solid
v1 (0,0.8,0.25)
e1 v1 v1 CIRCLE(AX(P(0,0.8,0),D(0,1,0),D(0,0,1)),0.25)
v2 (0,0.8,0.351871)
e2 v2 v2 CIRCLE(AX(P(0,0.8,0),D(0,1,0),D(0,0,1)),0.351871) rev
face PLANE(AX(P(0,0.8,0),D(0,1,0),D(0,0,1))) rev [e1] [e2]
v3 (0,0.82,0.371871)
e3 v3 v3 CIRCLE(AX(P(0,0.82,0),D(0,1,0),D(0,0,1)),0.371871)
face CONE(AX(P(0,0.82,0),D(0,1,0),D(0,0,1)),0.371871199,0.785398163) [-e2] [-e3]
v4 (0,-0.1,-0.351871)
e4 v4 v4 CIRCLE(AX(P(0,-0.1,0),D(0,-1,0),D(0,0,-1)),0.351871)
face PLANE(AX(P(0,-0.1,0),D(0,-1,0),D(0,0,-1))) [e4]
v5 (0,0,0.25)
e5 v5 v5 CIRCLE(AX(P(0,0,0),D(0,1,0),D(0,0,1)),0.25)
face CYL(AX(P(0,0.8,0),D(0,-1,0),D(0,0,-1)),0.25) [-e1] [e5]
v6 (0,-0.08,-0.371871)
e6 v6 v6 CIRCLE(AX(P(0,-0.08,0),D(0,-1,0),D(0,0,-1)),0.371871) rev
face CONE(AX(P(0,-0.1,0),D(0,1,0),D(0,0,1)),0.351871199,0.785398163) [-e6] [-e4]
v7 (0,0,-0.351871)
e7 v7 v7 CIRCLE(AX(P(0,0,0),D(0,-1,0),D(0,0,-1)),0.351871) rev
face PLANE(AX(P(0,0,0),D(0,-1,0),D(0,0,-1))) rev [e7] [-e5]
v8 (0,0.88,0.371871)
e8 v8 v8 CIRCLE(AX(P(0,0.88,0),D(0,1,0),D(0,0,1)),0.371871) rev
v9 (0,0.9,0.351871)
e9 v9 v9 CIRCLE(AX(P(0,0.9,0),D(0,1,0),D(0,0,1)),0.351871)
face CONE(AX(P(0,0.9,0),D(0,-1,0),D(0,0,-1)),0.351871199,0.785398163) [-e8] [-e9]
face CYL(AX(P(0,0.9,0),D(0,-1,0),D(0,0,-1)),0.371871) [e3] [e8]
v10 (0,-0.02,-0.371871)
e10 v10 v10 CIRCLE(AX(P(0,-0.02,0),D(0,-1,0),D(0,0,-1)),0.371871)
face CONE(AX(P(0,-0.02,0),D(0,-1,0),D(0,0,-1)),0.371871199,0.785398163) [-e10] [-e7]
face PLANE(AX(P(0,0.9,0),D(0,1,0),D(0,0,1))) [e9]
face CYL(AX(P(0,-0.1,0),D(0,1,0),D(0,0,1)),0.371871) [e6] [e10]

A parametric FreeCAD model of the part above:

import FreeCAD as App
import Part
import Sketcher
Q = App.Units.Quantity


def edges_at(feature, points):
    """Names of the edges that pass closest to the given points."""
    edges = feature.Shape.Edges
    near = lambda p: min(range(len(edges)), key=lambda i: edges[i].distToShape(Part.Vertex(*p))[0])
    return sorted({f"Edge{near(p) + 1}" for p in points})

doc = App.newDocument("Part")
params = doc.addObject("Spreadsheet::Sheet", "Params")
for row, (alias, value) in enumerate([
    ("sketch1_diameter", "0.5 mm"),
    ("pad1_length", "0.8 mm"),
    ("pad2_length", "0.1 mm"),
    ("pad3_length", "0.1 mm"),
    ("chamfer_size", "0.02 mm"),
    ("chamfer2_size", "0.02 mm"),
    ("chamfer3_size", "0.02 mm"),
], start=1):
    params.set(f"A{row}", alias)
    params.set(f"B{row}", "=" + value)
    params.setAlias(f"B{row}", alias)

body = doc.addObject("PartDesign::Body", "Body")

# Sketch on XZ plane
sketch1 = body.newObject("Sketcher::SketchObject", "Sketch")
sketch1.AttachmentSupport = (doc.getObject("XZ_Plane"), [""])
sketch1.MapMode = "FlatFace"
sketch1.addGeometry(Part.Circle(App.Vector(0, 0, 0), App.Vector(0, 0, 1), 0.25), False)
sketch1.addConstraint([
    Sketcher.Constraint("Coincident", 0, 3, -1, 1),
    Sketcher.Constraint("Diameter", 0, Q("0.5 mm")),
])
sketch1.setExpression("Constraints[1]", "Params.sketch1_diameter")
pad1 = body.newObject("PartDesign::Pad", "Pad")
pad1.Profile = sketch1
pad1.setExpression("Length", "Params.pad1_length")
pad1.Reversed = True

# Sketch on XZ plane
sketch2 = body.newObject("Sketcher::SketchObject", "Sketch001")
sketch2.AttachmentSupport = (doc.getObject("XZ_Plane"), [""])
sketch2.MapMode = "FlatFace"
sketch2.AttachmentOffset = App.Placement(App.Vector(0, 0, -0.8), App.Rotation())
sketch2.addGeometry(Part.Circle(App.Vector(0, 0, 0), App.Vector(0, 0, 1), 0.37), False)
sketch2.addConstraint([
    Sketcher.Constraint("Coincident", 0, 3, -1, 1),
    Sketcher.Constraint("Diameter", 0, Q("0.743742 mm")),
])
pad2 = body.newObject("PartDesign::Pad", "Pad001")
pad2.Profile = sketch2
pad2.setExpression("Length", "Params.pad2_length")
pad2.Reversed = True

# Sketch on XZ plane
sketch3 = body.newObject("Sketcher::SketchObject", "Sketch002")
sketch3.AttachmentSupport = (doc.getObject("XZ_Plane"), [""])
sketch3.MapMode = "FlatFace"
sketch3.addGeometry(Part.Circle(App.Vector(0, 0, 0), App.Vector(0, 0, 1), 0.37), False)
sketch3.addConstraint([
    Sketcher.Constraint("Coincident", 0, 3, -1, 1),
    Sketcher.Constraint("Diameter", 0, Q("0.743742 mm")),
])
pad3 = body.newObject("PartDesign::Pad", "Pad002")
pad3.Profile = sketch3
pad3.setExpression("Length", "Params.pad3_length")
doc.recompute()

chamfer = body.newObject("PartDesign::Chamfer", "Chamfer")
chamfer.Base = (pad3, edges_at(pad3, [(-0.372, 0.9, 0)]))
chamfer.setExpression("Size", "Params.chamfer_size")
doc.recompute()

chamfer2 = body.newObject("PartDesign::Chamfer", "Chamfer001")
chamfer2.Base = (chamfer, edges_at(chamfer, [(-0.372, 0.8, 0), (-0.372, 0, 0)]))
chamfer2.setExpression("Size", "Params.chamfer2_size")
doc.recompute()

chamfer3 = body.newObject("PartDesign::Chamfer", "Chamfer002")
chamfer3.Base = (chamfer2, edges_at(chamfer2, [(-0.372, -0.1, 0)]))
chamfer3.setExpression("Size", "Params.chamfer3_size")

doc.recompute()
